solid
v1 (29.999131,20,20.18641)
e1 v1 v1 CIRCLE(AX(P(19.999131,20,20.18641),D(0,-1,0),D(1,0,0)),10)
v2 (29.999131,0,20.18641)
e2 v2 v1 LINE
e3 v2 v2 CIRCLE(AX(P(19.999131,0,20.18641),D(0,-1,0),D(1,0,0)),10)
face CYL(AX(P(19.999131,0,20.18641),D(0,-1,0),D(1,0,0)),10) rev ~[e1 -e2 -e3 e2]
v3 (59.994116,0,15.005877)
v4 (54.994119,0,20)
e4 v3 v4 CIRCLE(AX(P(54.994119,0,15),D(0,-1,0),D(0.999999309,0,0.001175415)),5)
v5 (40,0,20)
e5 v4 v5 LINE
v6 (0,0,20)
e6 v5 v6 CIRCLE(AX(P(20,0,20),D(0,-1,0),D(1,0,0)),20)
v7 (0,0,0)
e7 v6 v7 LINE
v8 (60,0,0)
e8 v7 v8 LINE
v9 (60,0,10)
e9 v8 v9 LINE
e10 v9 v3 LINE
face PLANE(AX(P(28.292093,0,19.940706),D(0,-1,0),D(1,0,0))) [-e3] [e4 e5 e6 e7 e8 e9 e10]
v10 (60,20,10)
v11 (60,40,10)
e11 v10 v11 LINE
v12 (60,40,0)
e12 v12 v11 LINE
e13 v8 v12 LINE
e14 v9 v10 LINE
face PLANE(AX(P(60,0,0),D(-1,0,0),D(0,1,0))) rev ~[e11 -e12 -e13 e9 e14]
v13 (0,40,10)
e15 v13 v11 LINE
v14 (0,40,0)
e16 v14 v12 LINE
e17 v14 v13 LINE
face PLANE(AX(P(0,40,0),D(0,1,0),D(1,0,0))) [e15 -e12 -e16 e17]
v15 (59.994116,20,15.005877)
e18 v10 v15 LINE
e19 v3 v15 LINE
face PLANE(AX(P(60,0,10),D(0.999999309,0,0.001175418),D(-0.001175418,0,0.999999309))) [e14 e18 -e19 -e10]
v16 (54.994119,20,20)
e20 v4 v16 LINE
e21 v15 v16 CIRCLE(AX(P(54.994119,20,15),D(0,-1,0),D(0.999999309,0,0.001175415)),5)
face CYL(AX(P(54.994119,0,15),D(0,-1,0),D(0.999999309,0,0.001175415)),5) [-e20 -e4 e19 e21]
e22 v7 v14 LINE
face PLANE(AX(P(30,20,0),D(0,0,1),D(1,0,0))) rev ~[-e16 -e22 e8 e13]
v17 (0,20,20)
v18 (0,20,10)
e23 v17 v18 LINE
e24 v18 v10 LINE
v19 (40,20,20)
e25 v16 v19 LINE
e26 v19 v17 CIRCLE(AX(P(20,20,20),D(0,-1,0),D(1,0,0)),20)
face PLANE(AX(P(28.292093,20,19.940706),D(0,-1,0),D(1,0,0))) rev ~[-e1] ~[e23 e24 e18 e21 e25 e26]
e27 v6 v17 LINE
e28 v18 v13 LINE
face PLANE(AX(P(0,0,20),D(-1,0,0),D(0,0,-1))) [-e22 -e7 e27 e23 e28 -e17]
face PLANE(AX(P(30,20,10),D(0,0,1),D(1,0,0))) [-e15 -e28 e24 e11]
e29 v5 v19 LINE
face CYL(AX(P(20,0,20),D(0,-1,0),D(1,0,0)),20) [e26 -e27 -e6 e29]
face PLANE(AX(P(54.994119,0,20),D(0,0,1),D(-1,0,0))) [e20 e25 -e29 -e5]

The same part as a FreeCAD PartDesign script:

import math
import FreeCAD as App
import Part
import Sketcher

V = App.Vector
Q = App.Units.Quantity

doc = App.newDocument("Part")
body = doc.addObject("PartDesign::Body", "Body")

sketch1 = body.newObject("Sketcher::SketchObject", "Sketch")
sketch1.AttachmentSupport = (doc.getObject("XY_Plane"), [""])
sketch1.MapMode = "FlatFace"
sketch1.addGeometry(Part.LineSegment(V(0, 40, 0), V(0, 0, 0)), False)
sketch1.addGeometry(Part.LineSegment(V(0, 0, 0), V(60, 0, 0)), False)
sketch1.addGeometry(Part.LineSegment(V(60, 0, 0), V(60, 40, 0)), False)
sketch1.addGeometry(Part.LineSegment(V(60, 40, 0), V(0, 40, 0)), False)
sketch1.addConstraint(Sketcher.Constraint("Coincident", 0, 2, 1, 1))
sketch1.addConstraint(Sketcher.Constraint("Coincident", 1, 2, 2, 1))
sketch1.addConstraint(Sketcher.Constraint("Coincident", 2, 2, 3, 1))
sketch1.addConstraint(Sketcher.Constraint("Coincident", 3, 2, 0, 1))
sketch1.addConstraint(Sketcher.Constraint("Vertical", 0))
sketch1.addConstraint(Sketcher.Constraint("Horizontal", 1))
sketch1.addConstraint(Sketcher.Constraint("Vertical", 2))
sketch1.addConstraint(Sketcher.Constraint("Horizontal", 3))
sketch1.addConstraint(Sketcher.Constraint("Coincident", 0, 2, -1, 1))
sketch1.addConstraint(Sketcher.Constraint("DistanceX", 1, 1, 1, 2, Q("60 mm")))
sketch1.addConstraint(Sketcher.Constraint("DistanceY", 0, 2, 0, 1, Q("40 mm")))
pad1 = body.newObject("PartDesign::Pad", "Pad")
pad1.Profile = sketch1
pad1.Length = 10

sketch2 = body.newObject("Sketcher::SketchObject", "Sketch001")
sketch2.AttachmentSupport = (doc.getObject("XZ_Plane"), [""])
sketch2.MapMode = "FlatFace"
sketch2.addGeometry(Part.LineSegment(V(54.994119, 20, 0), V(40, 20, 0)), False)
sketch2.addGeometry(Part.ArcOfCircle(Part.Circle(V(20, 20, 0), V(0, 0, 1), 20), math.radians(0), math.radians(180)), False)
sketch2.addGeometry(Part.LineSegment(V(0, 20, 0), V(0, 10, 0)), False)
sketch2.addGeometry(Part.LineSegment(V(0, 10, 0), V(60, 10, 0)), False)
sketch2.addGeometry(Part.LineSegment(V(60, 10, 0), V(59.994116, 15.005877, 0)), False)
sketch2.addGeometry(Part.ArcOfCircle(Part.Circle(V(54.994119, 15, 0), V(0, 0, 1), 5), math.radians(0.067346), math.radians(90.000004)), False)
sketch2.addConstraint(Sketcher.Constraint("Coincident", 0, 2, 1, 1))
sketch2.addConstraint(Sketcher.Constraint("Tangent", 1, 2, 2, 1))
sketch2.addConstraint(Sketcher.Constraint("Coincident", 2, 2, 3, 1))
sketch2.addConstraint(Sketcher.Constraint("Coincident", 3, 2, 4, 1))
sketch2.addConstraint(Sketcher.Constraint("Tangent", 4, 2, 5, 1))
sketch2.addConstraint(Sketcher.Constraint("Tangent", 5, 2, 0, 1))
sketch2.addConstraint(Sketcher.Constraint("Horizontal", 0))
sketch2.addConstraint(Sketcher.Constraint("Vertical", 2))
sketch2.addConstraint(Sketcher.Constraint("Horizontal", 3))
sketch2.addConstraint(Sketcher.Constraint("PointOnObject", 1, 2, -2))
sketch2.addConstraint(Sketcher.Constraint("Horizontal", 1, 3, 0, 2))
sketch2.addConstraint(Sketcher.Constraint("Radius", 1, Q("20 mm")))
sketch2.addConstraint(Sketcher.Constraint("Radius", 5, Q("5 mm")))
sketch2.addConstraint(Sketcher.Constraint("DistanceX", 3, 1, 3, 2, Q("60 mm")))
sketch2.addConstraint(Sketcher.Constraint("DistanceY", 2, 2, 2, 1, Q("10 mm")))
sketch2.addConstraint(Sketcher.Constraint("DistanceY", -1, 1, 1, 3, Q("20 mm")))
sketch2.addConstraint(Sketcher.Constraint("DistanceX", 0, 2, 0, 1, Q("14.994119 mm")))
pad2 = body.newObject("PartDesign::Pad", "Pad001")
pad2.Profile = sketch2
pad2.Length = 20
pad2.Reversed = True

sketch3 = body.newObject("Sketcher::SketchObject", "Sketch002")
sketch3.AttachmentSupport = (doc.getObject("XZ_Plane"), [""])
sketch3.MapMode = "FlatFace"
sketch3.addGeometry(Part.Circle(V(19.999131, 20.18641, 0), V(0, 0, 1), 10), False)
sketch3.addConstraint(Sketcher.Constraint("Diameter", 0, Q("20 mm")))
sketch3.addConstraint(Sketcher.Constraint("DistanceX", -1, 1, 0, 3, Q("19.999131 mm")))
sketch3.addConstraint(Sketcher.Constraint("DistanceY", -1, 1, 0, 3, Q("20.18641 mm")))
pocket1 = body.newObject("PartDesign::Pocket", "Pocket")
pocket1.Profile = sketch3
pocket1.Length = 25

doc.recompute()
